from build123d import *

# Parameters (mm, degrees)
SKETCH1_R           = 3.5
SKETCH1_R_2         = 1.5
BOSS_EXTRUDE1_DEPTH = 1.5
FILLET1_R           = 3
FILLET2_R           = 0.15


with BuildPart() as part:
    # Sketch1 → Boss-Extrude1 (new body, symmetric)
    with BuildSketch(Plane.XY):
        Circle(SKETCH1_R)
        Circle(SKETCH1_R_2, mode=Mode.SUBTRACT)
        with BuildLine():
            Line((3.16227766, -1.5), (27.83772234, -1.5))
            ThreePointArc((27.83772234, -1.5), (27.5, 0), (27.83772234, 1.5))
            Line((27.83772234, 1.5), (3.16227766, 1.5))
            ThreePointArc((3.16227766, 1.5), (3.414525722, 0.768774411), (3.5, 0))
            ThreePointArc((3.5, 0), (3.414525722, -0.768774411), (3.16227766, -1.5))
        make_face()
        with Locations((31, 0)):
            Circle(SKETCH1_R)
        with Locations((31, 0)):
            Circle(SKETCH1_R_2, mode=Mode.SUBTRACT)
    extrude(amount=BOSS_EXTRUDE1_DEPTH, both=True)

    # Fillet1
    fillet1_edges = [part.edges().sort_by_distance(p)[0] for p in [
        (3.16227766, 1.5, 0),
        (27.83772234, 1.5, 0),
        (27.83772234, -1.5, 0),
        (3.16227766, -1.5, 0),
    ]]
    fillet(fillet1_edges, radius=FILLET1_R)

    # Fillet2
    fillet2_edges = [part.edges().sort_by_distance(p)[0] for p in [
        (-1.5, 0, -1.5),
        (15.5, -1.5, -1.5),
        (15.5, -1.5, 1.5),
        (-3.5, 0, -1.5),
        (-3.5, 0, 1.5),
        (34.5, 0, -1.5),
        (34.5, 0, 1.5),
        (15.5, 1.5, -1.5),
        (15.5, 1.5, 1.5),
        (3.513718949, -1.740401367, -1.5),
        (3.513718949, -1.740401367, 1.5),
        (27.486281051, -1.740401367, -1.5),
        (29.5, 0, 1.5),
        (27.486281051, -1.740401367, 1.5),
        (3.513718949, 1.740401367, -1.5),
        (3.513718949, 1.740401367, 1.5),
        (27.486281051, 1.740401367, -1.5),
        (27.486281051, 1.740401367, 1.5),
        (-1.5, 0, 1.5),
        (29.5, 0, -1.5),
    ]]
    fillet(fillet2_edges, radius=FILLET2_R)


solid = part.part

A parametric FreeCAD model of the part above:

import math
import FreeCAD as App
import Part
import Sketcher
Q = App.Units.Quantity


def edges_at(feature, points):
    """Names of the edges that pass closest to the given points."""
    edges = feature.Shape.Edges
    near = lambda p: min(range(len(edges)), key=lambda i: edges[i].distToShape(Part.Vertex(*p))[0])
    return sorted({f"Edge{near(p) + 1}" for p in points})

doc = App.newDocument("Part")
body = doc.addObject("PartDesign::Body", "Body")

# Sketch on XY plane
sketch1 = body.newObject("Sketcher::SketchObject", "Sketch")
sketch1.AttachmentSupport = (doc.getObject("XY_Plane"), [""])
sketch1.MapMode = "FlatFace"
sketch1.addGeometry([
    Part.ArcOfCircle(Part.Circle(App.Vector(0, 0, 0), App.Vector(0, 0, 1), 3.5), math.radians(25), math.radians(335)),  # 0
    Part.LineSegment(App.Vector(3.2, -1.5, 0), App.Vector(27.8, -1.5, 0)),  # 1
    Part.ArcOfCircle(Part.Circle(App.Vector(31, 0, 0), App.Vector(0, 0, 1), 3.5), math.radians(-155), math.radians(155)),  # 2
    Part.LineSegment(App.Vector(27.8, 1.5, 0), App.Vector(3.2, 1.5, 0)),  # 3
    Part.Circle(App.Vector(0, 0, 0), App.Vector(0, 0, 1), 1.5),  # 4
    Part.Circle(App.Vector(31, 0, 0), App.Vector(0, 0, 1), 1.5),  # 5
], False)
sketch1.addConstraint([
    Sketcher.Constraint("Coincident", 0, 2, 1, 1),
    Sketcher.Constraint("Coincident", 1, 2, 2, 1),
    Sketcher.Constraint("Coincident", 2, 2, 3, 1),
    Sketcher.Constraint("Coincident", 3, 2, 0, 1),
    Sketcher.Constraint("Horizontal", 1),
    Sketcher.Constraint("Horizontal", 3),
    Sketcher.Constraint("Coincident", 0, 3, -1, 1),
    Sketcher.Constraint("Coincident", 4, 3, -1, 1),
    Sketcher.Constraint("Coincident", 5, 3, 2, 3),
    Sketcher.Constraint("Equal", 0, 2),
    Sketcher.Constraint("Equal", 4, 5),
    Sketcher.Constraint("Symmetric", 1, 2, 2, 2, -1),
    Sketcher.Constraint("Diameter", 4, Q("3 mm")),
    Sketcher.Constraint("Radius", 0, Q("3.5 mm")),
    Sketcher.Constraint("DistanceX", -1, 1, 2, 3, Q("31 mm")),
    Sketcher.Constraint("DistanceY", 1, 2, 2, 2, Q("3 mm")),
])
pad1 = body.newObject("PartDesign::Pad", "Pad")
pad1.Profile = sketch1
pad1.Length = 3
pad1.Midplane = True
doc.recompute()

fillet = body.newObject("PartDesign::Fillet", "Fillet")
fillet.Base = (pad1, edges_at(pad1, [
    (3.162, 1.5, 0),
    (27.838, 1.5, 0),
    (27.838, -1.5, 0),
    (3.162, -1.5, 0),
]))
fillet.Radius = 3
doc.recompute()

fillet2 = body.newObject("PartDesign::Fillet", "Fillet001")
fillet2.Base = (fillet, edges_at(fillet, [
    (-1.5, 0, -1.5),
    (15.5, -1.5, -1.5),
    (15.5, -1.5, 1.5),
    (-3.5, 0, -1.5),
    (-3.5, 0, 1.5),
    (34.5, 0, -1.5),
    (34.5, 0, 1.5),
    (15.5, 1.5, -1.5),
    (15.5, 1.5, 1.5),
    (3.514, -1.74, -1.5),
    (3.514, -1.74, 1.5),
    (27.486, -1.74, -1.5),
    (29.5, 0, 1.5),
    (27.486, -1.74, 1.5),
    (3.514, 1.74, -1.5),
    (3.514, 1.74, 1.5),
    (27.486, 1.74, -1.5),
    (27.486, 1.74, 1.5),
    (-1.5, 0, 1.5),
    (29.5, 0, -1.5),
]))
fillet2.Radius = 0.15

doc.recompute()
